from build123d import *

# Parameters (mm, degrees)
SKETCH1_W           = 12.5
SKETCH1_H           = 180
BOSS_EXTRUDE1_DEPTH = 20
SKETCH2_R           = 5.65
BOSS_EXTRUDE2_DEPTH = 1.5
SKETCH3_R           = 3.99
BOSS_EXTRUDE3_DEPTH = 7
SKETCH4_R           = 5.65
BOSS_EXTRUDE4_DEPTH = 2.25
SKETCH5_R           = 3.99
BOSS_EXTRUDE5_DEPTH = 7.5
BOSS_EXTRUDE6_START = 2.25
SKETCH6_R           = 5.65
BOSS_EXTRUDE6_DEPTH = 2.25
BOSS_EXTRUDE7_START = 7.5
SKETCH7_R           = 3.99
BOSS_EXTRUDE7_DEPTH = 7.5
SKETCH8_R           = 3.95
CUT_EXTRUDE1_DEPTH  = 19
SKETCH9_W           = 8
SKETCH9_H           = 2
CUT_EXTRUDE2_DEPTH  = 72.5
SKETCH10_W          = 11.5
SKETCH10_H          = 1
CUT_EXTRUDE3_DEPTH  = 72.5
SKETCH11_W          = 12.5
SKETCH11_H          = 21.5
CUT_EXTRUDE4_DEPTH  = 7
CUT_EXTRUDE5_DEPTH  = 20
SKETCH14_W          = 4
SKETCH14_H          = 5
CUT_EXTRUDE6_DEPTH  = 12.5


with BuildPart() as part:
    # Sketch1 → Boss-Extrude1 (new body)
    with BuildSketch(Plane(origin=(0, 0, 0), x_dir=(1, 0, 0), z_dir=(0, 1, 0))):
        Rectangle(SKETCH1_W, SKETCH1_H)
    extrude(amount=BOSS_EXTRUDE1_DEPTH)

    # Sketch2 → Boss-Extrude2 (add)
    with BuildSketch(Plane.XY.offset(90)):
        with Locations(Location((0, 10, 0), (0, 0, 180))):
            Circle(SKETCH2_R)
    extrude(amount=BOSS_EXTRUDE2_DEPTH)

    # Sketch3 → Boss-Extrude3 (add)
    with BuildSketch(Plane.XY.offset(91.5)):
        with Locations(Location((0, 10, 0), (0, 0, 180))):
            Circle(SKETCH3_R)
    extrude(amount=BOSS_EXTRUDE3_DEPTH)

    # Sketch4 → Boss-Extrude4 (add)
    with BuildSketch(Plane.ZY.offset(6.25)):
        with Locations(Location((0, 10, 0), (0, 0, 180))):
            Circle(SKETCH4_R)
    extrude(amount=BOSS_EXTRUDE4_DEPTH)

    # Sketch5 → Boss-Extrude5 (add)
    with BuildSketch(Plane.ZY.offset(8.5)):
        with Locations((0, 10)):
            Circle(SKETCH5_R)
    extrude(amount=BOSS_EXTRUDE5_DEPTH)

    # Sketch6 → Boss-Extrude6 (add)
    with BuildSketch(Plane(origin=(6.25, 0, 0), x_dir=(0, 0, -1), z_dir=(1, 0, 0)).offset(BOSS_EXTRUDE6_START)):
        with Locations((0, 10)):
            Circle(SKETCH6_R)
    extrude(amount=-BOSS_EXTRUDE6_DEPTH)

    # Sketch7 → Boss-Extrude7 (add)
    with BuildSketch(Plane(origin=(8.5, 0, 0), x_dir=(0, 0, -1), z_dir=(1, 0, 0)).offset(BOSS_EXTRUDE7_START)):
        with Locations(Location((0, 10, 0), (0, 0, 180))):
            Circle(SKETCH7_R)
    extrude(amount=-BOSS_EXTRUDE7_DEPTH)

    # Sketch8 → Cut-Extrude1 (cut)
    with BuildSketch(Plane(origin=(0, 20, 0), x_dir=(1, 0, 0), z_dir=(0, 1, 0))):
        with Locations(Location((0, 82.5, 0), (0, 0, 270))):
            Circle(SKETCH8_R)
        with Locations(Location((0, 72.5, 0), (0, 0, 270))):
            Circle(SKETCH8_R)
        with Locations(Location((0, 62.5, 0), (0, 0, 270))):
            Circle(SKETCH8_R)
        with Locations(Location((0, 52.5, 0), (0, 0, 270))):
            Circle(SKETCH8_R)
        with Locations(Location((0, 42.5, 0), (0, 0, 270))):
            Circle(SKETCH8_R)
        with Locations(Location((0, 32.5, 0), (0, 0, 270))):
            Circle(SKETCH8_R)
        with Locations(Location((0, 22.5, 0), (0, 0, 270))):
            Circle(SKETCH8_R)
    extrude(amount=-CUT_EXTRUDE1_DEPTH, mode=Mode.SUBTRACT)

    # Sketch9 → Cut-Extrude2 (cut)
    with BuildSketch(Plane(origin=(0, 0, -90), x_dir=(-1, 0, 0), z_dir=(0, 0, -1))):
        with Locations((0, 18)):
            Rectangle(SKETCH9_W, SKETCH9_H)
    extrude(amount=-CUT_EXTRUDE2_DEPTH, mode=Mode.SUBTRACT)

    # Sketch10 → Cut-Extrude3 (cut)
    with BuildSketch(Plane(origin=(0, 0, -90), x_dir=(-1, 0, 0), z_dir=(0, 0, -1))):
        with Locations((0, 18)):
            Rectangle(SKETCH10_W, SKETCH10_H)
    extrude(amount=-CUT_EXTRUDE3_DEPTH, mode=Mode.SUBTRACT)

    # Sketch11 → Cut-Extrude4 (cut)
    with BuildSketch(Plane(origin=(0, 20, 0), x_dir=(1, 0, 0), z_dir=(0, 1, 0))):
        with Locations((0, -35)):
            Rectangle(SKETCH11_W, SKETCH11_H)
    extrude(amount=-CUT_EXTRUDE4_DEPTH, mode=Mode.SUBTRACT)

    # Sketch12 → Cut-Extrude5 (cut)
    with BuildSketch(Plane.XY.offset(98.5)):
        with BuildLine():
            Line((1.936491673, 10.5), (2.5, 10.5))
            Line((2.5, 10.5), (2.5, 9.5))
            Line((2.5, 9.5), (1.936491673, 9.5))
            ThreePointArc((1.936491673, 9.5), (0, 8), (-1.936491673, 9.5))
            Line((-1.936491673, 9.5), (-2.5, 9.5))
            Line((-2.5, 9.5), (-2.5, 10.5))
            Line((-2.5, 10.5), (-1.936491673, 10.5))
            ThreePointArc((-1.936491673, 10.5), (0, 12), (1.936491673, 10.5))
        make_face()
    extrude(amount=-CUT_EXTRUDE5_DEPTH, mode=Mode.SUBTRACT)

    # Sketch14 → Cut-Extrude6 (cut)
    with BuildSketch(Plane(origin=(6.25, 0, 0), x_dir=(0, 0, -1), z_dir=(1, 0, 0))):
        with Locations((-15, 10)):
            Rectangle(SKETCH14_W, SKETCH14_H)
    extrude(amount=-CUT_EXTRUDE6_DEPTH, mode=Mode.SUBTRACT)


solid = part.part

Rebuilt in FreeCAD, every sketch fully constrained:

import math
import FreeCAD as App
import Part
import Sketcher

V = App.Vector


def add_polygon(sketch, points):
    """Adds a closed chain of lines whose ends are joined by coincident constraints."""
    first, n = sketch.GeometryCount, len(points)
    for a, b in zip(points, points[1:] + points[:1]):
        sketch.addGeometry(Part.LineSegment(App.Vector(*a, 0), App.Vector(*b, 0)), False)
    for i in range(n):
        sketch.addConstraint(Sketcher.Constraint("Coincident", first + i, 2, first + (i + 1) % n, 1))

doc = App.newDocument("Part")
params = doc.addObject("Spreadsheet::Sheet", "Params")
for row, (alias, value) in enumerate([
    ("sketch1_height", "180 mm"),
    ("sketch1_width", "12.5 mm"),
    ("pad1_length", "20 mm"),
    ("sketch2_diameter", "11.3 mm"),
    ("pad2_length", "1.5 mm"),
    ("sketch3_diameter", "7.98 mm"),
    ("pad3_length", "7 mm"),
    ("sketch4_diameter", "11.3 mm"),
    ("pad4_length", "2.25 mm"),
    ("sketch5_diameter", "7.98 mm"),
    ("pad5_length", "7.5 mm"),
    ("sketch6_diameter", "11.3 mm"),
    ("pad6_length", "2.25 mm"),
    ("sketch7_diameter", "7.98 mm"),
    ("pad7_length", "7.5 mm"),
    ("sketch8_diameter", "7.9 mm"),
    ("pocket1_length", "19 mm"),
    ("sketch9_width", "8 mm"),
    ("sketch9_height", "2 mm"),
    ("pocket2_length", "72.5 mm"),
    ("sketch10_height", "1 mm"),
    ("sketch10_width", "11.5 mm"),
    ("pocket3_length", "72.5 mm"),
    ("sketch11_width", "12.5 mm"),
    ("sketch11_height", "21.5 mm"),
    ("pocket4_length", "7 mm"),
    ("sketch12_radius", "2 mm"),
    ("sketch12_height", "1 mm"),
    ("pocket5_length", "20 mm"),
    ("sketch13_width", "5 mm"),
    ("sketch13_height", "4 mm"),
    ("pocket6_length", "12.5 mm"),
], start=1):
    params.set(f"A{row}", alias)
    params.set(f"B{row}", "=" + value)
    params.setAlias(f"B{row}", alias)

body = doc.addObject("PartDesign::Body", "Body")

sketch1 = body.newObject("Sketcher::SketchObject", "Sketch")
sketch1.AttachmentSupport = (doc.getObject("XZ_Plane"), [""])
sketch1.MapMode = "FlatFace"
add_polygon(sketch1, [(-6, -90), (-6, 90), (6, 90), (6, -90)])
sketch1.addConstraint([
    Sketcher.Constraint("Vertical", 0),
    Sketcher.Constraint("Horizontal", 1),
    Sketcher.Constraint("Vertical", 2),
    Sketcher.Constraint("Horizontal", 3),
    Sketcher.Constraint("Symmetric", 0, 2, 2, 2, -1, 1),
    Sketcher.Constraint("DistanceY", 0, 1, 0, 2, 180.0),
    Sketcher.Constraint("DistanceX", 1, 1, 1, 2, 12.5),
])
sketch1.setExpression("Constraints[9]", "Params.sketch1_height")
sketch1.setExpression("Constraints[10]", "Params.sketch1_width")
pad1 = body.newObject("PartDesign::Pad", "Pad")
pad1.Profile = sketch1
pad1.setExpression("Length", "Params.pad1_length")
pad1.Reversed = True

sketch2 = body.newObject("Sketcher::SketchObject", "Sketch001")
sketch2.AttachmentSupport = (doc.getObject("XY_Plane"), [""])
sketch2.MapMode = "FlatFace"
sketch2.AttachmentOffset = App.Placement(V(0, 0, 90), App.Rotation())
sketch2.addGeometry(Part.Circle(V(0, 10, 0), V(0, 0, 1), 6), False)
sketch2.addConstraint([
    Sketcher.Constraint("PointOnObject", 0, 3, -2),
    Sketcher.Constraint("Diameter", 0, 11.3),
    Sketcher.Constraint("DistanceY", -1, 1, 0, 3, 10.0),
])
sketch2.setExpression("Constraints[1]", "Params.sketch2_diameter")
pad2 = body.newObject("PartDesign::Pad", "Pad001")
pad2.Profile = sketch2
pad2.setExpression("Length", "Params.pad2_length")

sketch3 = body.newObject("Sketcher::SketchObject", "Sketch002")
sketch3.AttachmentSupport = (doc.getObject("XY_Plane"), [""])
sketch3.MapMode = "FlatFace"
sketch3.AttachmentOffset = App.Placement(V(0, 0, 91.5), App.Rotation())
sketch3.addGeometry(Part.Circle(V(0, 10, 0), V(0, 0, 1), 4), False)
sketch3.addConstraint([
    Sketcher.Constraint("PointOnObject", 0, 3, -2),
    Sketcher.Constraint("Diameter", 0, 7.98),
    Sketcher.Constraint("DistanceY", -1, 1, 0, 3, 10.0),
])
sketch3.setExpression("Constraints[1]", "Params.sketch3_diameter")
pad3 = body.newObject("PartDesign::Pad", "Pad002")
pad3.Profile = sketch3
pad3.setExpression("Length", "Params.pad3_length")

sketch4 = body.newObject("Sketcher::SketchObject", "Sketch003")
sketch4.AttachmentSupport = (doc.getObject("YZ_Plane"), [""])
sketch4.MapMode = "FlatFace"
sketch4.AttachmentOffset = App.Placement(V(0, 0, -6.25), App.Rotation())
sketch4.addGeometry(Part.Circle(V(10, 0, 0), V(0, 0, 1), 6), False)
sketch4.addConstraint([
    Sketcher.Constraint("PointOnObject", 0, 3, -1),
    Sketcher.Constraint("Diameter", 0, 11.3),
    Sketcher.Constraint("DistanceX", -1, 1, 0, 3, 10.0),
])
sketch4.setExpression("Constraints[1]", "Params.sketch4_diameter")
pad4 = body.newObject("PartDesign::Pad", "Pad003")
pad4.Profile = sketch4
pad4.setExpression("Length", "Params.pad4_length")
pad4.Reversed = True

sketch5 = body.newObject("Sketcher::SketchObject", "Sketch004")
sketch5.AttachmentSupport = (doc.getObject("YZ_Plane"), [""])
sketch5.MapMode = "FlatFace"
sketch5.AttachmentOffset = App.Placement(V(0, 0, -8.5), App.Rotation())
sketch5.addGeometry(Part.Circle(V(10, 0, 0), V(0, 0, 1), 4), False)
sketch5.addConstraint([
    Sketcher.Constraint("PointOnObject", 0, 3, -1),
    Sketcher.Constraint("Diameter", 0, 7.98),
    Sketcher.Constraint("DistanceX", -1, 1, 0, 3, 10.0),
])
sketch5.setExpression("Constraints[1]", "Params.sketch5_diameter")
pad5 = body.newObject("PartDesign::Pad", "Pad004")
pad5.Profile = sketch5
pad5.setExpression("Length", "Params.pad5_length")
pad5.Reversed = True

sketch6 = body.newObject("Sketcher::SketchObject", "Sketch005")
sketch6.AttachmentSupport = (doc.getObject("YZ_Plane"), [""])
sketch6.MapMode = "FlatFace"
sketch6.AttachmentOffset = App.Placement(V(0, 0, 8.5), App.Rotation())
sketch6.addGeometry(Part.Circle(V(10, 0, 0), V(0, 0, 1), 6), False)
sketch6.addConstraint([
    Sketcher.Constraint("PointOnObject", 0, 3, -1),
    Sketcher.Constraint("Diameter", 0, 11.3),
    Sketcher.Constraint("DistanceX", -1, 1, 0, 3, 10.0),
])
sketch6.setExpression("Constraints[1]", "Params.sketch6_diameter")
pad6 = body.newObject("PartDesign::Pad", "Pad005")
pad6.Profile = sketch6
pad6.setExpression("Length", "Params.pad6_length")
pad6.Reversed = True

sketch7 = body.newObject("Sketcher::SketchObject", "Sketch006")
sketch7.AttachmentSupport = (doc.getObject("YZ_Plane"), [""])
sketch7.MapMode = "FlatFace"
sketch7.AttachmentOffset = App.Placement(V(0, 0, 16), App.Rotation())
sketch7.addGeometry(Part.Circle(V(10, 0, 0), V(0, 0, 1), 4), False)
sketch7.addConstraint([
    Sketcher.Constraint("PointOnObject", 0, 3, -1),
    Sketcher.Constraint("Diameter", 0, 7.98),
    Sketcher.Constraint("DistanceX", -1, 1, 0, 3, 10.0),
])
sketch7.setExpression("Constraints[1]", "Params.sketch7_diameter")
pad7 = body.newObject("PartDesign::Pad", "Pad006")
pad7.Profile = sketch7
pad7.setExpression("Length", "Params.pad7_length")
pad7.Reversed = True

sketch8 = body.newObject("Sketcher::SketchObject", "Sketch007")
sketch8.AttachmentSupport = (doc.getObject("XZ_Plane"), [""])
sketch8.MapMode = "FlatFace"
sketch8.AttachmentOffset = App.Placement(V(0, 0, -20), App.Rotation())
sketch8.addGeometry([
    Part.Circle(V(0, -82.5, 0), V(0, 0, 1), 4),
    Part.Circle(V(0, -72.5, 0), V(0, 0, 1), 4),
    Part.Circle(V(0, -62.5, 0), V(0, 0, 1), 4),
    Part.Circle(V(0, -52.5, 0), V(0, 0, 1), 4),
    Part.Circle(V(0, -42.5, 0), V(0, 0, 1), 4),
    Part.Circle(V(0, -32.5, 0), V(0, 0, 1), 4),
    Part.Circle(V(0, -22.5, 0), V(0, 0, 1), 4),
], False)
sketch8.addConstraint([
    Sketcher.Constraint("Equal", 0, 1),
    Sketcher.Constraint("Equal", 1, 2),
    Sketcher.Constraint("Equal", 2, 3),
    Sketcher.Constraint("Equal", 3, 4),
    Sketcher.Constraint("Equal", 4, 5),
    Sketcher.Constraint("Equal", 5, 6),
    Sketcher.Constraint("PointOnObject", 0, 3, -2),
    Sketcher.Constraint("PointOnObject", 1, 3, -2),
    Sketcher.Constraint("PointOnObject", 2, 3, -2),
    Sketcher.Constraint("PointOnObject", 3, 3, -2),
    Sketcher.Constraint("PointOnObject", 4, 3, -2),
    Sketcher.Constraint("PointOnObject", 5, 3, -2),
    Sketcher.Constraint("PointOnObject", 6, 3, -2),
    Sketcher.Constraint("Diameter", 0, 7.9),
    Sketcher.Constraint("DistanceY", 0, 3, 1, 3, 10.0),
    Sketcher.Constraint("DistanceY", 1, 3, 2, 3, 10.0),
    Sketcher.Constraint("DistanceY", 2, 3, 3, 3, 10.0),
    Sketcher.Constraint("DistanceY", 3, 3, 4, 3, 10.0),
    Sketcher.Constraint("DistanceY", 4, 3, 5, 3, 10.0),
    Sketcher.Constraint("DistanceY", 5, 3, 6, 3, 10.0),
    Sketcher.Constraint("DistanceY", 0, 3, -1, 1, 82.5),
])
sketch8.setExpression("Constraints[13]", "Params.sketch8_diameter")
pocket1 = body.newObject("PartDesign::Pocket", "Pocket")
pocket1.Profile = sketch8
pocket1.setExpression("Length", "Params.pocket1_length")
pocket1.Reversed = True

sketch9 = body.newObject("Sketcher::SketchObject", "Sketch008")
sketch9.AttachmentSupport = (doc.getObject("XY_Plane"), [""])
sketch9.MapMode = "FlatFace"
sketch9.AttachmentOffset = App.Placement(V(0, 0, -90), App.Rotation())
add_polygon(sketch9, [(4, 19), (4, 17), (-4, 17), (-4, 19)])
sketch9.addConstraint([
    Sketcher.Constraint("Vertical", 0),
    Sketcher.Constraint("Horizontal", 1),
    Sketcher.Constraint("Vertical", 2),
    Sketcher.Constraint("Horizontal", 3),
    Sketcher.Constraint("DistanceX", 1, 2, 1, 1, 8.0),
    Sketcher.Constraint("DistanceY", 0, 2, 0, 1, 2.0),
    Sketcher.Constraint("DistanceX", -1, 1, 0, 2, 4.0),
    Sketcher.Constraint("DistanceY", -1, 1, 0, 2, 17.0),
])
sketch9.setExpression("Constraints[8]", "Params.sketch9_width")
sketch9.setExpression("Constraints[9]", "Params.sketch9_height")
pocket2 = body.newObject("PartDesign::Pocket", "Pocket001")
pocket2.Profile = sketch9
pocket2.setExpression("Length", "Params.pocket2_length")
pocket2.Reversed = True

sketch10 = body.newObject("Sketcher::SketchObject", "Sketch009")
sketch10.AttachmentSupport = (doc.getObject("XY_Plane"), [""])
sketch10.MapMode = "FlatFace"
sketch10.AttachmentOffset = App.Placement(V(0, 0, -90), App.Rotation())
add_polygon(sketch10, [(5.8, 18.5), (5.8, 17.5), (-5.8, 17.5), (-5.8, 18.5)])
sketch10.addConstraint([
    Sketcher.Constraint("Vertical", 0),
    Sketcher.Constraint("Horizontal", 1),
    Sketcher.Constraint("Vertical", 2),
    Sketcher.Constraint("Horizontal", 3),
    Sketcher.Constraint("DistanceY", 0, 2, 0, 1, 1.0),
    Sketcher.Constraint("DistanceX", 1, 2, 1, 1, 11.5),
    Sketcher.Constraint("DistanceY", -1, 1, 0, 2, 17.5),
    Sketcher.Constraint("DistanceX", -1, 1, 0, 2, 5.75),
])
sketch10.setExpression("Constraints[8]", "Params.sketch10_height")
sketch10.setExpression("Constraints[9]", "Params.sketch10_width")
pocket3 = body.newObject("PartDesign::Pocket", "Pocket002")
pocket3.Profile = sketch10
pocket3.setExpression("Length", "Params.pocket3_length")
pocket3.Reversed = True

sketch11 = body.newObject("Sketcher::SketchObject", "Sketch010")
sketch11.AttachmentSupport = (doc.getObject("XZ_Plane"), [""])
sketch11.MapMode = "FlatFace"
sketch11.AttachmentOffset = App.Placement(V(0, 0, -20), App.Rotation())
add_polygon(sketch11, [(-6, 24), (-6, 46), (6, 46), (6, 24)])
sketch11.addConstraint([
    Sketcher.Constraint("Vertical", 0),
    Sketcher.Constraint("Horizontal", 1),
    Sketcher.Constraint("Vertical", 2),
    Sketcher.Constraint("Horizontal", 3),
    Sketcher.Constraint("DistanceX", 1, 1, 1, 2, 12.5),
    Sketcher.Constraint("DistanceY", 0, 1, 0, 2, 21.5),
    Sketcher.Constraint("DistanceX", 0, 2, -1, 1, 6.25),
    Sketcher.Constraint("DistanceY", -1, 1, 0, 2, 45.75),
])
sketch11.setExpression("Constraints[8]", "Params.sketch11_width")
sketch11.setExpression("Constraints[9]", "Params.sketch11_height")
pocket4 = body.newObject("PartDesign::Pocket", "Pocket003")
pocket4.Profile = sketch11
pocket4.setExpression("Length", "Params.pocket4_length")
pocket4.Reversed = True

sketch12 = body.newObject("Sketcher::SketchObject", "Sketch011")
sketch12.AttachmentSupport = (doc.getObject("XY_Plane"), [""])
sketch12.MapMode = "FlatFace"
sketch12.AttachmentOffset = App.Placement(V(0, 0, 98.5), App.Rotation())
sketch12.addGeometry([
    Part.LineSegment(V(2.5, 10.5, 0), V(1.9, 10.5, 0)),
    Part.ArcOfCircle(Part.Circle(V(0, 10, 0), V(0, 0, 1), 2), math.radians(14), math.radians(166)),
    Part.LineSegment(V(-1.9, 10.5, 0), V(-2.5, 10.5, 0)),
    Part.LineSegment(V(-2.5, 10.5, 0), V(-2.5, 9.5, 0)),
    Part.LineSegment(V(-2.5, 9.5, 0), V(-1.9, 9.5, 0)),
    Part.ArcOfCircle(Part.Circle(V(0, 10, 0), V(0, 0, 1), 2), math.radians(-166), math.radians(-14)),
    Part.LineSegment(V(1.9, 9.5, 0), V(2.5, 9.5, 0)),
    Part.LineSegment(V(2.5, 9.5, 0), V(2.5, 10.5, 0)),
], False)
sketch12.addConstraint([
    Sketcher.Constraint("Coincident", 0, 2, 1, 1),
    Sketcher.Constraint("Coincident", 1, 2, 2, 1),
    Sketcher.Constraint("Coincident", 2, 2, 3, 1),
    Sketcher.Constraint("Coincident", 3, 2, 4, 1),
    Sketcher.Constraint("Coincident", 4, 2, 5, 1),
    Sketcher.Constraint("Coincident", 5, 2, 6, 1),
    Sketcher.Constraint("Coincident", 6, 2, 7, 1),
    Sketcher.Constraint("Coincident", 7, 2, 0, 1),
    Sketcher.Constraint("Horizontal", 0),
    Sketcher.Constraint("Horizontal", 2),
    Sketcher.Constraint("Vertical", 3),
    Sketcher.Constraint("Horizontal", 4),
    Sketcher.Constraint("Horizontal", 6),
    Sketcher.Constraint("Vertical", 7),
    Sketcher.Constraint("Coincident", 5, 3, 1, 3),
    Sketcher.Constraint("Equal", 1, 5),
    Sketcher.Constraint("Symmetric", 0, 2, 1, 2, -2),
    Sketcher.Constraint("Symmetric", 3, 2, 6, 2, -2),
    Sketcher.Constraint("Vertical", 1, 2, 4, 2),
    Sketcher.Constraint("Radius", 1, 2.0),
    Sketcher.Constraint("DistanceY", 3, 2, 3, 1, 1.0),
    Sketcher.Constraint("DistanceY", -1, 1, 1, 3, 10.0),
    Sketcher.Constraint("DistanceX", 2, 2, -1, 1, 2.5),
])
sketch12.setExpression("Constraints[19]", "Params.sketch12_radius")
sketch12.setExpression("Constraints[20]", "Params.sketch12_height")
pocket5 = body.newObject("PartDesign::Pocket", "Pocket004")
pocket5.Profile = sketch12
pocket5.setExpression("Length", "Params.pocket5_length")

sketch13 = body.newObject("Sketcher::SketchObject", "Sketch012")
sketch13.AttachmentSupport = (doc.getObject("YZ_Plane"), [""])
sketch13.MapMode = "FlatFace"
sketch13.AttachmentOffset = App.Placement(V(0, 0, 6.25), App.Rotation())
add_polygon(sketch13, [(12.5, 17), (7.5, 17), (7.5, 13), (12.5, 13)])
sketch13.addConstraint([
    Sketcher.Constraint("Horizontal", 0),
    Sketcher.Constraint("Vertical", 1),
    Sketcher.Constraint("Horizontal", 2),
    Sketcher.Constraint("Vertical", 3),
    Sketcher.Constraint("DistanceX", 0, 2, 0, 1, 5.0),
    Sketcher.Constraint("DistanceY", 1, 2, 1, 1, 4.0),
    Sketcher.Constraint("DistanceY", -1, 1, 0, 2, 17.0),
    Sketcher.Constraint("DistanceX", -1, 1, 0, 2, 7.5),
])
sketch13.setExpression("Constraints[8]", "Params.sketch13_width")
sketch13.setExpression("Constraints[9]", "Params.sketch13_height")
pocket6 = body.newObject("PartDesign::Pocket", "Pocket005")
pocket6.Profile = sketch13
pocket6.setExpression("Length", "Params.pocket6_length")

doc.recompute()
